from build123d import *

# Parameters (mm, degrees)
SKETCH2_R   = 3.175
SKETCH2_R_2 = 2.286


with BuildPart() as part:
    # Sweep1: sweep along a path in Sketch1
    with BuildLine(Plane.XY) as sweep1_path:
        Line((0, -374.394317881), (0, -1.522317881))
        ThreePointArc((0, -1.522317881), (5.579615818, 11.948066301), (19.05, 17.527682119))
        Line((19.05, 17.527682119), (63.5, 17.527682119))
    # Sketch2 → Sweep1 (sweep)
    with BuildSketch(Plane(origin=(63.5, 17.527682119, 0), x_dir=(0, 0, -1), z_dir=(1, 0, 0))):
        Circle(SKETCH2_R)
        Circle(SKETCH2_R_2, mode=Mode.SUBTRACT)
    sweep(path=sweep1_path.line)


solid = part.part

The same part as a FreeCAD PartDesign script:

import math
import FreeCAD as App
import Part
import Sketcher
Q = App.Units.Quantity

doc = App.newDocument("Part")
body = doc.addObject("PartDesign::Body", "Body")

# Sketch on YZ plane
sketch1 = body.newObject("Sketcher::SketchObject", "Sketch")
sketch1.AttachmentSupport = (doc.getObject("YZ_Plane"), [""])
sketch1.MapMode = "FlatFace"
sketch1.AttachmentOffset = App.Placement(App.Vector(0, 0, 2.5 * 25.4), App.Rotation())
sketch1.addGeometry(Part.Circle(App.Vector(17.5, 0, 0), App.Vector(0, 0, 1), 3.2), False)
sketch1.addGeometry(Part.Circle(App.Vector(17.5, 0, 0), App.Vector(0, 0, 1), 2.3), False)
sketch1.addConstraint(Sketcher.Constraint("Coincident", 1, 3, 0, 3))
sketch1.addConstraint(Sketcher.Constraint("PointOnObject", 0, 3, -1))
sketch1.addConstraint(Sketcher.Constraint("Diameter", 0, Q("0.25 in")))
sketch1.addConstraint(Sketcher.Constraint("Diameter", 1, Q("0.18 in")))
sketch1.addConstraint(Sketcher.Constraint("DistanceX", -1, 1, 0, 3, Q("17.527682 mm")))

# Sketch on XY plane
sketch2 = body.newObject("Sketcher::SketchObject", "Sketch001")
sketch2.AttachmentSupport = (doc.getObject("XY_Plane"), [""])
sketch2.MapMode = "FlatFace"
sketch2.addGeometry(Part.LineSegment(App.Vector(0, -374, 0), App.Vector(0, -2, 0)), False)
sketch2.addGeometry(Part.ArcOfCircle(Part.Circle(App.Vector(19, -2, 0), App.Vector(0, 0, 1), 19), math.radians(90), math.radians(180)), False)
sketch2.addGeometry(Part.LineSegment(App.Vector(19, 18, 0), App.Vector(64, 18, 0)), False)
sketch2.addConstraint(Sketcher.Constraint("Tangent", 0, 2, 1, 2))
sketch2.addConstraint(Sketcher.Constraint("Tangent", 1, 1, 2, 1))
sketch2.addConstraint(Sketcher.Constraint("Vertical", 0))
sketch2.addConstraint(Sketcher.Constraint("Horizontal", 2))
sketch2.addConstraint(Sketcher.Constraint("PointOnObject", 0, 1, -2))
sketch2.addConstraint(Sketcher.Constraint("Radius", 1, Q("0.75 in")))
sketch2.addConstraint(Sketcher.Constraint("DistanceX", 2, 1, 2, 2, Q("1.75 in")))
sketch2.addConstraint(Sketcher.Constraint("DistanceY", 0, 1, 0, 2, Q("14.68 in")))
sketch2.addConstraint(Sketcher.Constraint("DistanceY", 1, 3, -1, 1, Q("1.522318 mm")))
doc.recompute()

additivepipe = body.newObject("PartDesign::AdditivePipe", "AdditivePipe")
additivepipe.Profile = sketch1
additivepipe.Spine = (sketch2, ["Edge1", "Edge2", "Edge3"])

doc.recompute()
